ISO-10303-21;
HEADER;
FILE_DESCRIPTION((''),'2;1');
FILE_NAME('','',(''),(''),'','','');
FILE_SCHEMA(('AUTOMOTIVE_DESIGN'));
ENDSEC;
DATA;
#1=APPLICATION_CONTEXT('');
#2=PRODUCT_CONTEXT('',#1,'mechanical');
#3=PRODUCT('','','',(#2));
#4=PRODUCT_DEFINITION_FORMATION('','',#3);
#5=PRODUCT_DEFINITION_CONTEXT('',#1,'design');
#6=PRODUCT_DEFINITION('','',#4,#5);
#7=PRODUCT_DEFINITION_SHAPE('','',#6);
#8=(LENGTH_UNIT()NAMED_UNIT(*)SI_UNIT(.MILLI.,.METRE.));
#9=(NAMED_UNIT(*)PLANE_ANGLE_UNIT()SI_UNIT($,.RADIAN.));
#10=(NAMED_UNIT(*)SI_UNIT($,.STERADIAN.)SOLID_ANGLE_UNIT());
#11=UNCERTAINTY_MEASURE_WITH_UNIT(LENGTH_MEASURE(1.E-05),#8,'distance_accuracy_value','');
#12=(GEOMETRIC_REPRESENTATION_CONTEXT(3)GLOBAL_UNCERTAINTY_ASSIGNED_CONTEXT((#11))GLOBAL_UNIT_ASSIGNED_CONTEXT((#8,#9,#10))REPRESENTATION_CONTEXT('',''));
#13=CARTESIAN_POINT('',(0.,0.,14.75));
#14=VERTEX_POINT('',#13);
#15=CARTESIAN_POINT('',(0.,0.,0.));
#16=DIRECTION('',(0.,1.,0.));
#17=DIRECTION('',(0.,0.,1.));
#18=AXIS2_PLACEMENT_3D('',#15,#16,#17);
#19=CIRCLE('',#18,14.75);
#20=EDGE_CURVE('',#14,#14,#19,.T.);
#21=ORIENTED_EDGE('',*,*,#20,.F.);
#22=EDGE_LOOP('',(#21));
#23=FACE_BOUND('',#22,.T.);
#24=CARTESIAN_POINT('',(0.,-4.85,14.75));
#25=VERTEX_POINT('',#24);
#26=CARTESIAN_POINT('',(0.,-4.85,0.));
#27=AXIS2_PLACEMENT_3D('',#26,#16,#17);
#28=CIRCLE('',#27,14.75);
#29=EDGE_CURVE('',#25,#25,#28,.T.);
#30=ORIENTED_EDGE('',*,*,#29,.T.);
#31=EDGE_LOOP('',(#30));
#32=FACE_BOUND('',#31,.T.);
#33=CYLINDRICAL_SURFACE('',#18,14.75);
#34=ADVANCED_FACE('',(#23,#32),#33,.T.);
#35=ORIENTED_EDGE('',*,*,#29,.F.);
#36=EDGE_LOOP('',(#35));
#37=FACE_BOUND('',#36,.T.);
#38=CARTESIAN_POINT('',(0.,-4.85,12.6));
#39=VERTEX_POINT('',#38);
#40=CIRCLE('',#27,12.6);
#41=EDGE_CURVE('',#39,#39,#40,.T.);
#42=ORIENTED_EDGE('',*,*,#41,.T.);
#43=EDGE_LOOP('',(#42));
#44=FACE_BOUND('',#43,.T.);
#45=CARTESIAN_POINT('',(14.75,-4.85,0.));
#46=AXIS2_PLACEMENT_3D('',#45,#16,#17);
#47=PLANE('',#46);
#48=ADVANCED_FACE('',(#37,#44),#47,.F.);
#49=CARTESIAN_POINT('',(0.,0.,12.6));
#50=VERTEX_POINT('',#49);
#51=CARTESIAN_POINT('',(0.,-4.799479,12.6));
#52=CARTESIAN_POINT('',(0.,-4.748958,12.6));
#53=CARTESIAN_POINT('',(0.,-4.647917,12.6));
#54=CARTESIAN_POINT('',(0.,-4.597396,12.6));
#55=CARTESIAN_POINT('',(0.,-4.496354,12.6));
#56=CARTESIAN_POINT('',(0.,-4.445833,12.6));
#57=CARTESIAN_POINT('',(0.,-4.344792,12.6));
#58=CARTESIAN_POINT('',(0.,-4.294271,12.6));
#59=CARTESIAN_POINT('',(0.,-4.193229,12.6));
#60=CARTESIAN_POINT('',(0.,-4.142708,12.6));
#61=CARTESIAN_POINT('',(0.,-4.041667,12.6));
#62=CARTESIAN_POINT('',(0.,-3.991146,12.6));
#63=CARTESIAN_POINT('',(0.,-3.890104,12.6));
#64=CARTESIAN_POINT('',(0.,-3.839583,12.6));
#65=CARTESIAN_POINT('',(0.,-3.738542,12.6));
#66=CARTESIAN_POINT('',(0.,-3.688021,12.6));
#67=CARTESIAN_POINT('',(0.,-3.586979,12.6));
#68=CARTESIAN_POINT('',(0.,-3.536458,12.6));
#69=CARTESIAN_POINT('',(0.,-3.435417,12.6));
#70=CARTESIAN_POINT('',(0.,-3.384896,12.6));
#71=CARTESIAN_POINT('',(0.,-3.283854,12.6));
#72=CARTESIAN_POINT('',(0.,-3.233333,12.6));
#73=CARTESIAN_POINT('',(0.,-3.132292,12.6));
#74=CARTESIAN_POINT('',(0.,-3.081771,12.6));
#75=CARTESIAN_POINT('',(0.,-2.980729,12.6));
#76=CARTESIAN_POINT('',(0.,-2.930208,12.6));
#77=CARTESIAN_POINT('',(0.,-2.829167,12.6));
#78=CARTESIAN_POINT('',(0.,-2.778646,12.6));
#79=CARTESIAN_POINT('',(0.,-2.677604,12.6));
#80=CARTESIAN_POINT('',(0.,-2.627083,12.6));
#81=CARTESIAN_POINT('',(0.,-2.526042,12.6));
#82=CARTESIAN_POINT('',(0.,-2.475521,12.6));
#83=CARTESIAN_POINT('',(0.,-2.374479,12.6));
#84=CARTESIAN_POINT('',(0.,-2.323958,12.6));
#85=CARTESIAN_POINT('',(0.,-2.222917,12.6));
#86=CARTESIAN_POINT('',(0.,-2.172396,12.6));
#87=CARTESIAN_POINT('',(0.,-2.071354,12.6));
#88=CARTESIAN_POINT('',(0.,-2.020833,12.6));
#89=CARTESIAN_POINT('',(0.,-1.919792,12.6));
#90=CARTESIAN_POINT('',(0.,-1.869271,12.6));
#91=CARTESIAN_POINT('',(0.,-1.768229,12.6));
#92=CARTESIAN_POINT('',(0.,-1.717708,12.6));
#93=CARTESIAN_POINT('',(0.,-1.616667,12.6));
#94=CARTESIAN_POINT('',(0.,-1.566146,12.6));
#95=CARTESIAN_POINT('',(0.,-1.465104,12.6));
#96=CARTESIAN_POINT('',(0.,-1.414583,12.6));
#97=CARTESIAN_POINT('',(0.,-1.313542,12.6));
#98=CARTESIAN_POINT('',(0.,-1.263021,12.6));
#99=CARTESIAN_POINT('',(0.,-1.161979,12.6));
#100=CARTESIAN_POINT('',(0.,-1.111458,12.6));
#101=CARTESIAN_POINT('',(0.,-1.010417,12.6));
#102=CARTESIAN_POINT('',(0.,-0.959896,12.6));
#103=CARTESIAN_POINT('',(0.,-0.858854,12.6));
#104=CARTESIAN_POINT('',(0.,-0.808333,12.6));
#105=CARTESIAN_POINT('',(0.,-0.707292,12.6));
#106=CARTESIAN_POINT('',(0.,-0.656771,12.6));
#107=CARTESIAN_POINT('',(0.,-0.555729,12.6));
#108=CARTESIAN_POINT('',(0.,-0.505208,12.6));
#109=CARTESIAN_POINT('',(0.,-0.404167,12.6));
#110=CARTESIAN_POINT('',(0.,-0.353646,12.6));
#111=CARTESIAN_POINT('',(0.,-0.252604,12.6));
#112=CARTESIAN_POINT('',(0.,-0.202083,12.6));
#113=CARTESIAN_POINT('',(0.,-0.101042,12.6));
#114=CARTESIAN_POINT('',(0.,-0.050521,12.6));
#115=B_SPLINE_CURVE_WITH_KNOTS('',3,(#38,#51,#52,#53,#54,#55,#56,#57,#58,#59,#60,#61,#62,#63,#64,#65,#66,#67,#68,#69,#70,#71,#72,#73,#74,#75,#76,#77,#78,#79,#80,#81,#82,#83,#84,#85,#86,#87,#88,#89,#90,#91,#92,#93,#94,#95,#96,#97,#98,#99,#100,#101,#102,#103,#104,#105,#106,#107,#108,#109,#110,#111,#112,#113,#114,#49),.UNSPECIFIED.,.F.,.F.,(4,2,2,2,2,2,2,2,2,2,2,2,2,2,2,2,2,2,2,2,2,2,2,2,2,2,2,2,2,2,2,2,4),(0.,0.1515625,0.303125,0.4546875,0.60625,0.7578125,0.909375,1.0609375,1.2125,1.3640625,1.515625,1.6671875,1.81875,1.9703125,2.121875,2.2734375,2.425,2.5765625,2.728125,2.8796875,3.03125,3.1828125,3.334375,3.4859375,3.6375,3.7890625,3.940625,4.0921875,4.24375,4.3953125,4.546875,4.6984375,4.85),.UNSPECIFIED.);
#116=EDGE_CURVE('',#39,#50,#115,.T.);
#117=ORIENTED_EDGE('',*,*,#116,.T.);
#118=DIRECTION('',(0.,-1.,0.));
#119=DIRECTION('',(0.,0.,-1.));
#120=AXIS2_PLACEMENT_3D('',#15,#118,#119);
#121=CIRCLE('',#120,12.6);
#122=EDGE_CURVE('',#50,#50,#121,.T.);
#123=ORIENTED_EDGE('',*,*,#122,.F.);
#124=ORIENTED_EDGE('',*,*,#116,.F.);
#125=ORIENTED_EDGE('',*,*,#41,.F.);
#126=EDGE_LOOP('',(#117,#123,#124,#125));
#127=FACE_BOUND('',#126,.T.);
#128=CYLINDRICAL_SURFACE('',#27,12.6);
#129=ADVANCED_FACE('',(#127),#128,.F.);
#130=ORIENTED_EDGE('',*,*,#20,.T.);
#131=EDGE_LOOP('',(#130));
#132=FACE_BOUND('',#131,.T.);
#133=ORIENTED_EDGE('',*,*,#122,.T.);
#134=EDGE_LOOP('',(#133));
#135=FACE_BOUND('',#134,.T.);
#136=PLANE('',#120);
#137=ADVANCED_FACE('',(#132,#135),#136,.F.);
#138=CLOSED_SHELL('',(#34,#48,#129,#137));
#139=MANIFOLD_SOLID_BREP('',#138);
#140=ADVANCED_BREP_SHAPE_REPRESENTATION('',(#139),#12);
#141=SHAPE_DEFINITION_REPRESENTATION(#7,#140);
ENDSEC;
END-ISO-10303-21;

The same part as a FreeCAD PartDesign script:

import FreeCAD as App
import Part
import Sketcher
from FreeCAD import Vector


def add_polygon(sketch, points):
    """Adds a closed chain of lines whose ends are joined by coincident constraints."""
    first, n = sketch.GeometryCount, len(points)
    for a, b in zip(points, points[1:] + points[:1]):
        sketch.addGeometry(Part.LineSegment(App.Vector(*a, 0), App.Vector(*b, 0)), False)
    for i in range(n):
        sketch.addConstraint(Sketcher.Constraint("Coincident", first + i, 2, first + (i + 1) % n, 1))

doc = App.newDocument("Part")
body = doc.addObject("PartDesign::Body", "Body")

# Sketch on XY plane
sketch1 = body.newObject("Sketcher::SketchObject", "Sketch")
sketch1.AttachmentSupport = (doc.getObject("XY_Plane"), [""])
sketch1.MapMode = "FlatFace"
add_polygon(sketch1, [(0, 0), (0, -4.8), (14.8, -4.8), (14.8, 0)])  # lines 0-3
sketch1.addConstraint([
    Sketcher.Constraint("Vertical", 0),
    Sketcher.Constraint("Horizontal", 1),
    Sketcher.Constraint("Vertical", 2),
    Sketcher.Constraint("Horizontal", 3),
    Sketcher.Constraint("Coincident", 3, 2, -1, 1),
    Sketcher.Constraint("DistanceX", 1, 1, 1, 2, 14.75),
    Sketcher.Constraint("DistanceY", 0, 2, 0, 1, 4.85),
])
revolution = body.newObject("PartDesign::Revolution", "Revolution")
revolution.Profile = sketch1
revolution.ReferenceAxis = (sketch1, ["V_Axis"])
revolution.Angle = 360

# Sketch on XZ plane
sketch2 = body.newObject("Sketcher::SketchObject", "Sketch001")
sketch2.AttachmentSupport = (doc.getObject("XZ_Plane"), [""])
sketch2.MapMode = "FlatFace"
sketch2.addGeometry(Part.Circle(Vector(0, 0, 0), Vector(0, 0, 1), 13), False)
sketch2.addConstraint([
    Sketcher.Constraint("Coincident", 0, 3, -1, 1),
    Sketcher.Constraint("Diameter", 0, 25.2),
])
pocket1 = body.newObject("PartDesign::Pocket", "Pocket")
pocket1.Profile = sketch2
pocket1.Type = "ThroughAll"
pocket1.Midplane = True

doc.recompute()
